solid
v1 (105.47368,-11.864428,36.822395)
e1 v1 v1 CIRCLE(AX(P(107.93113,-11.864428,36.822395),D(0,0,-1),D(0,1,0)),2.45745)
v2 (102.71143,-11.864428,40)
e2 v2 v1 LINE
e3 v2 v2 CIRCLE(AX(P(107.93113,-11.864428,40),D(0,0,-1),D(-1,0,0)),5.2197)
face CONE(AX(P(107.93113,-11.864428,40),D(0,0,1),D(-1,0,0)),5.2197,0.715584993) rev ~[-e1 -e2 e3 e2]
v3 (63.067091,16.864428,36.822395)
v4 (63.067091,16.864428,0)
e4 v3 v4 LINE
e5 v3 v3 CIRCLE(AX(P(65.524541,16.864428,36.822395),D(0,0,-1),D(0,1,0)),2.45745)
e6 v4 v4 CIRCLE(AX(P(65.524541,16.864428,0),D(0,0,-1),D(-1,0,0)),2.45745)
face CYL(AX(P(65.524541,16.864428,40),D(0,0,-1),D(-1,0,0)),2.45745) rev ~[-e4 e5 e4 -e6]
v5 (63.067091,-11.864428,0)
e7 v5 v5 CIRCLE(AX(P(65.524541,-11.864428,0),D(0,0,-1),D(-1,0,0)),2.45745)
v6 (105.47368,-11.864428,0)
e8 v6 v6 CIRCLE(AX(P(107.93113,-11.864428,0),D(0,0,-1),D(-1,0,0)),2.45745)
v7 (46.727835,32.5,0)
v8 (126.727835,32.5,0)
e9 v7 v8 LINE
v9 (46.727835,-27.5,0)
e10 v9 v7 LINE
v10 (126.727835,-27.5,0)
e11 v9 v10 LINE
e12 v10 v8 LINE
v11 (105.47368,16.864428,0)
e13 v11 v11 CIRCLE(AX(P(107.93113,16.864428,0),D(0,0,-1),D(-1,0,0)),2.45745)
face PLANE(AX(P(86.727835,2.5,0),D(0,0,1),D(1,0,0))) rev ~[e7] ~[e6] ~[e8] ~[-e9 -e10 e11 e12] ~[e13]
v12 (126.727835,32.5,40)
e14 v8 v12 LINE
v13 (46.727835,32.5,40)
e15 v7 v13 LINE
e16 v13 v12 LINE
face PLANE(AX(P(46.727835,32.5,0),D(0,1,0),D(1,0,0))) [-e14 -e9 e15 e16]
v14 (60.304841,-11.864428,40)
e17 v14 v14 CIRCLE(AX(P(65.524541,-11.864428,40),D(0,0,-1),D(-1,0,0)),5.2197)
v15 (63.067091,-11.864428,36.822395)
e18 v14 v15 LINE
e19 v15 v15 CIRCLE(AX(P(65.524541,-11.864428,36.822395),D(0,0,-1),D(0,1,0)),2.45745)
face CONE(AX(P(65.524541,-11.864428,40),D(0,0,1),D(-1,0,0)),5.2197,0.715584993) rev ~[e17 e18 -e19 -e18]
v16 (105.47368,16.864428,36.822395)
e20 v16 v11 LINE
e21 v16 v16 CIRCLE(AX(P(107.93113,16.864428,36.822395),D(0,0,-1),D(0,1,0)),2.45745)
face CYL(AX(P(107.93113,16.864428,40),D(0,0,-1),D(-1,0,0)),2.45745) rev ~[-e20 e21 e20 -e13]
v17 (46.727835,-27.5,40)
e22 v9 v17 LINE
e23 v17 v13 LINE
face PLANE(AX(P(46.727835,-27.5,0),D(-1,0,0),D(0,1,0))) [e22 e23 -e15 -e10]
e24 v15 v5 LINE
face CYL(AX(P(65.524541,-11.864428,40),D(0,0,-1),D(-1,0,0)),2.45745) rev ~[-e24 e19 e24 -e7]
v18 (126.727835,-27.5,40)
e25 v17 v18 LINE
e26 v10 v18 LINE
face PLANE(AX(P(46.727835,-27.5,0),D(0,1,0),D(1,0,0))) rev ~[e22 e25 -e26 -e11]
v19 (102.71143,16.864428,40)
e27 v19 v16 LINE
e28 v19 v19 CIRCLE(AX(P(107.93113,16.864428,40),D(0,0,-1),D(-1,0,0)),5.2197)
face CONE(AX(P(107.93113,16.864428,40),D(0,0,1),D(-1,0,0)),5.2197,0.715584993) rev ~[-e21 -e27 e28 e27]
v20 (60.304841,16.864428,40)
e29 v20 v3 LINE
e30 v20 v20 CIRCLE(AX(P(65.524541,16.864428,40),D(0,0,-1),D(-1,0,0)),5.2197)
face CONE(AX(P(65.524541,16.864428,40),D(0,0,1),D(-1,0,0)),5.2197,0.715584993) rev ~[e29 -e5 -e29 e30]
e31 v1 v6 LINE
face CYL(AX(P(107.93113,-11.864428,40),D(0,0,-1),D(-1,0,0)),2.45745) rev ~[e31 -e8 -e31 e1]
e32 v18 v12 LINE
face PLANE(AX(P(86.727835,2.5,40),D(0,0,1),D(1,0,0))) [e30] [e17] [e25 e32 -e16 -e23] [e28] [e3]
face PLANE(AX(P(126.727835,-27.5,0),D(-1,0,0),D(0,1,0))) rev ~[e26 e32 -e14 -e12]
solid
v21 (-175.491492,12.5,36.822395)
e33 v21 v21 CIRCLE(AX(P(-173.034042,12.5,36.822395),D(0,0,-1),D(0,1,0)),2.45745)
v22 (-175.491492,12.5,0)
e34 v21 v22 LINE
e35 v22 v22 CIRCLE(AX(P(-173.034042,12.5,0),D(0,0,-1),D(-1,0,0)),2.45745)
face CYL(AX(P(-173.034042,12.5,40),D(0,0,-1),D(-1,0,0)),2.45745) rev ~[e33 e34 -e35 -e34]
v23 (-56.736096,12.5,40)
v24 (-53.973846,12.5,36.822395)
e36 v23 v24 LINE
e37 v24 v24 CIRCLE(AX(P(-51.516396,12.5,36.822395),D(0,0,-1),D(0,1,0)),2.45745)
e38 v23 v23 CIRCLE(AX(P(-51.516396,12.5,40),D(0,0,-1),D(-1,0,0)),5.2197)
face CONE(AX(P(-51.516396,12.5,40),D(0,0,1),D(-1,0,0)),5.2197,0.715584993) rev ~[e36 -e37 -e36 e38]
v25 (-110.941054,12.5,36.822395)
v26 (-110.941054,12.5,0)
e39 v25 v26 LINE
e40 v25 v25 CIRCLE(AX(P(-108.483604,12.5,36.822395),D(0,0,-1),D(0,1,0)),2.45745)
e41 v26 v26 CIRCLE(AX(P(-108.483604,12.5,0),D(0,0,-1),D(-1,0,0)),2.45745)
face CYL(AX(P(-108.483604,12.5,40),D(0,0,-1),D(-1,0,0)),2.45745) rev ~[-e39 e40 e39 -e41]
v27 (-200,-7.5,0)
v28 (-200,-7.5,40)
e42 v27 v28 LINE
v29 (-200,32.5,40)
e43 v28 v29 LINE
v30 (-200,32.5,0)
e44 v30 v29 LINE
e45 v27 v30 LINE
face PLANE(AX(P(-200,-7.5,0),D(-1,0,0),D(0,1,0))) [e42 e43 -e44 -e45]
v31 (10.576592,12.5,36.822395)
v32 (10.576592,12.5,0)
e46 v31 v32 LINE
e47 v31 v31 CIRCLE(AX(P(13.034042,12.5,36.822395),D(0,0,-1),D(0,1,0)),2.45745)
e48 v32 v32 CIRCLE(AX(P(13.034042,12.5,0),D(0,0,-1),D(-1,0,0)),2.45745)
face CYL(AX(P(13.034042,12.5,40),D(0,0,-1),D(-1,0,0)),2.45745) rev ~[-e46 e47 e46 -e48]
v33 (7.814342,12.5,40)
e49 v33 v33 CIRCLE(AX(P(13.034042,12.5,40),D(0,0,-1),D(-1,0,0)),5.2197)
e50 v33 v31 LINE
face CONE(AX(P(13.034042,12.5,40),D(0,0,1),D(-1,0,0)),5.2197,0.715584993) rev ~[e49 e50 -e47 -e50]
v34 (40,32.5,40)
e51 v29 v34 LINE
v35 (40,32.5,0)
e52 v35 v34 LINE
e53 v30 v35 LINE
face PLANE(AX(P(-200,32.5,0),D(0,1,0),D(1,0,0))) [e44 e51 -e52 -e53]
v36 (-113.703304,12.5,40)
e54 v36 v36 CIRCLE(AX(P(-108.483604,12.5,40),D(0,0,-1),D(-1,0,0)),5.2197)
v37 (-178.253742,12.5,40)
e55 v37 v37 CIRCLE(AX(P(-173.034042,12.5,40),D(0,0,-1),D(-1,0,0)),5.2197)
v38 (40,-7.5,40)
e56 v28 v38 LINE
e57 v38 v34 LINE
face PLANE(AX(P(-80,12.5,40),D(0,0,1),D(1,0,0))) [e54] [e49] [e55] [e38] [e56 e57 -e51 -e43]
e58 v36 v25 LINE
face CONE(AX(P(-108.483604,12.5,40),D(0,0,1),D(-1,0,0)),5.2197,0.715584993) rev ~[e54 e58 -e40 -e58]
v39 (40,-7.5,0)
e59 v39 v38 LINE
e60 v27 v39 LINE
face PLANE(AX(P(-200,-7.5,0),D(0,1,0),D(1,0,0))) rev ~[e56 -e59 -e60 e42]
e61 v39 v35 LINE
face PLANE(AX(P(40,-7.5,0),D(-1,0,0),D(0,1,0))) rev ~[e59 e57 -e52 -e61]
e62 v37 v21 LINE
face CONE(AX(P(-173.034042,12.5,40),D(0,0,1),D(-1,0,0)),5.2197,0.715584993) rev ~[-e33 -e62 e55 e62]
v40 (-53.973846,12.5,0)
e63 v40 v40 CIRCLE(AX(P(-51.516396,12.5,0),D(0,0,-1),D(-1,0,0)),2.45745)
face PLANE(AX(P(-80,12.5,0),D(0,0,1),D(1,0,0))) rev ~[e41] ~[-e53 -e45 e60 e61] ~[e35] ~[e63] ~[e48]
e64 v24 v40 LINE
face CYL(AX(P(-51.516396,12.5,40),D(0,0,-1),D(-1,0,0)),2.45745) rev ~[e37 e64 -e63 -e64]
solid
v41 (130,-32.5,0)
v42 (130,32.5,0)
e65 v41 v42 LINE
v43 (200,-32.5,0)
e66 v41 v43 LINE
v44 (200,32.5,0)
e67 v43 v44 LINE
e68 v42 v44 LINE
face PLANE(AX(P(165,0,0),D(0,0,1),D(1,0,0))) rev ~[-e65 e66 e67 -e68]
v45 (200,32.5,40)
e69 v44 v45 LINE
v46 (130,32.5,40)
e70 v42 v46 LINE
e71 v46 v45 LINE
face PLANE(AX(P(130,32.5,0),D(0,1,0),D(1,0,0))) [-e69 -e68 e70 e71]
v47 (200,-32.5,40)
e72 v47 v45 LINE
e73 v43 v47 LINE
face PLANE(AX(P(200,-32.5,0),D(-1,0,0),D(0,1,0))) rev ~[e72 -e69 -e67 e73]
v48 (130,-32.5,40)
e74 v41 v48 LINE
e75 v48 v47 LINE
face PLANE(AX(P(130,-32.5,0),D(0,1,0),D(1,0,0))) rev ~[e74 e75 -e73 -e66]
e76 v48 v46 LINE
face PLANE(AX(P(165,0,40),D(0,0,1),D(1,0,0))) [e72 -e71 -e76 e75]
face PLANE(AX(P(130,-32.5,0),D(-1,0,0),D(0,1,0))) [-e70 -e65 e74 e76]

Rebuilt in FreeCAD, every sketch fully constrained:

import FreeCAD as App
import Part
import Sketcher
from FreeCAD import Vector
Q = App.Units.Quantity

doc = App.newDocument("Part")
body = doc.addObject("PartDesign::Body", "Body")

# Sketch on XY plane
sketch1 = body.newObject("Sketcher::SketchObject", "Sketch")
sketch1.AttachmentSupport = (doc.getObject("XY_Plane"), [""])
sketch1.MapMode = "FlatFace"
sketch1.addGeometry([
    Part.LineSegment(Vector(-200, 32.5, 0), Vector(-200, -7.5, 0)),
    Part.LineSegment(Vector(-200, -7.5, 0), Vector(40, -7.5, 0)),
    Part.LineSegment(Vector(40, -7.5, 0), Vector(40, 32.5, 0)),
    Part.LineSegment(Vector(40, 32.5, 0), Vector(-200, 32.5, 0)),
], False)
sketch1.addConstraint([
    Sketcher.Constraint("Coincident", 0, 2, 1, 1),
    Sketcher.Constraint("Coincident", 1, 2, 2, 1),
    Sketcher.Constraint("Coincident", 2, 2, 3, 1),
    Sketcher.Constraint("Coincident", 3, 2, 0, 1),
    Sketcher.Constraint("Vertical", 0),
    Sketcher.Constraint("Horizontal", 1),
    Sketcher.Constraint("Vertical", 2),
    Sketcher.Constraint("Horizontal", 3),
    Sketcher.Constraint("DistanceX", 1, 1, 1, 2, Q("240 mm")),
    Sketcher.Constraint("DistanceY", 0, 2, 0, 1, Q("40 mm")),
    Sketcher.Constraint("DistanceX", 0, 2, -1, 1, Q("200 mm")),
    Sketcher.Constraint("DistanceY", 0, 2, -1, 1, Q("7.5 mm")),
])
pad1 = body.newObject("PartDesign::Pad", "Pad")
pad1.Profile = sketch1
pad1.Length = 40

# Sketch on XY plane
sketch2 = body.newObject("Sketcher::SketchObject", "Sketch001")
sketch2.AttachmentSupport = (doc.getObject("XY_Plane"), [""])
sketch2.MapMode = "FlatFace"
sketch2.AttachmentOffset = App.Placement(Vector(0, 0, 40), App.Rotation())
sketch2.addGeometry([
    Part.Circle(Vector(65.524541, 16.864428, 0), Vector(0, 0, 1), 2.45745),  # 0
    Part.Circle(Vector(107.93113, 16.864428, 0), Vector(0, 0, 1), 2.45745),  # 1
    Part.Circle(Vector(107.93113, -11.864428, 0), Vector(0, 0, 1), 2.45745),  # 2
    Part.Circle(Vector(65.524541, -11.864428, 0), Vector(0, 0, 1), 2.45745),  # 3
    Part.Circle(Vector(-51.516396, 12.5, 0), Vector(0, 0, 1), 2.45745),  # 4
    Part.Circle(Vector(13.034042, 12.5, 0), Vector(0, 0, 1), 2.45745),  # 5
    Part.Circle(Vector(-108.483604, 12.5, 0), Vector(0, 0, 1), 2.45745),  # 6
    Part.Circle(Vector(-173.034042, 12.5, 0), Vector(0, 0, 1), 2.45745),  # 7
], False)
sketch2.addConstraint([
    Sketcher.Constraint("Equal", 0, 1),
    Sketcher.Constraint("Equal", 1, 2),
    Sketcher.Constraint("Equal", 2, 3),
    Sketcher.Constraint("Equal", 3, 4),
    Sketcher.Constraint("Equal", 4, 5),
    Sketcher.Constraint("Equal", 5, 6),
    Sketcher.Constraint("Equal", 6, 7),
    Sketcher.Constraint("Horizontal", 0, 3, 1, 3),
    Sketcher.Constraint("Horizontal", 2, 3, 3, 3),
    Sketcher.Constraint("Horizontal", 4, 3, 5, 3),
    Sketcher.Constraint("Horizontal", 5, 3, 6, 3),
    Sketcher.Constraint("Horizontal", 6, 3, 7, 3),
    Sketcher.Constraint("Vertical", 1, 3, 2, 3),
    Sketcher.Constraint("Vertical", 0, 3, 3, 3),
    Sketcher.Constraint("Diameter", 0, Q("4.9149 mm")),
    Sketcher.Constraint("DistanceY", -1, 1, 4, 3, Q("12.5 mm")),
    Sketcher.Constraint("DistanceX", 5, 3, 0, 3, Q("52.490499 mm")),
    Sketcher.Constraint("DistanceX", -1, 1, 0, 3, Q("65.524541 mm")),
    Sketcher.Constraint("DistanceY", -1, 1, 0, 3, Q("16.864428 mm")),
    Sketcher.Constraint("DistanceX", -1, 1, 1, 3, Q("107.93113 mm")),
    Sketcher.Constraint("DistanceY", 2, 3, -1, 1, Q("11.864428 mm")),
    Sketcher.Constraint("DistanceX", 4, 3, 5, 3, Q("64.550438 mm")),
    Sketcher.Constraint("DistanceX", 6, 3, 4, 3, Q("56.967208 mm")),
    Sketcher.Constraint("DistanceX", 7, 3, 6, 3, Q("64.550438 mm")),
])
doc.recompute()
hole = body.newObject("PartDesign::Hole", "Hole")
hole.Profile = sketch2
hole.ThreadType = "None"
hole.Diameter = 4.9149
hole.DepthType = "ThroughAll"
hole.HoleCutType = "Countersink"
hole.HoleCutDiameter = 10.4394
hole.HoleCutCountersinkAngle = 82
body2 = doc.addObject("PartDesign::Body", "Body001")

# Sketch on XY plane
sketch3 = body2.newObject("Sketcher::SketchObject", "Sketch002")
sketch3.AttachmentSupport = (doc.getObject("XY_Plane001"), [""])
sketch3.MapMode = "FlatFace"
sketch3.addGeometry([
    Part.LineSegment(Vector(46.727835, 32.5, 0), Vector(46.727835, -27.5, 0)),
    Part.LineSegment(Vector(46.727835, -27.5, 0), Vector(126.727835, -27.5, 0)),
    Part.LineSegment(Vector(126.727835, -27.5, 0), Vector(126.727835, 32.5, 0)),
    Part.LineSegment(Vector(126.727835, 32.5, 0), Vector(46.727835, 32.5, 0)),
], False)
sketch3.addConstraint([
    Sketcher.Constraint("Coincident", 0, 2, 1, 1),
    Sketcher.Constraint("Coincident", 1, 2, 2, 1),
    Sketcher.Constraint("Coincident", 2, 2, 3, 1),
    Sketcher.Constraint("Coincident", 3, 2, 0, 1),
    Sketcher.Constraint("Vertical", 0),
    Sketcher.Constraint("Horizontal", 1),
    Sketcher.Constraint("Vertical", 2),
    Sketcher.Constraint("Horizontal", 3),
    Sketcher.Constraint("DistanceX", 1, 1, 1, 2, Q("80 mm")),
    Sketcher.Constraint("DistanceY", 0, 2, 0, 1, Q("60 mm")),
    Sketcher.Constraint("DistanceY", 0, 2, -1, 1, Q("27.5 mm")),
    Sketcher.Constraint("DistanceX", -1, 1, 0, 2, Q("46.727835 mm")),
])
pad2 = body2.newObject("PartDesign::Pad", "Pad001")
pad2.Profile = sketch3
pad2.Length = 40

# Sketch on XY plane
sketch4 = body2.newObject("Sketcher::SketchObject", "Sketch003")
sketch4.AttachmentSupport = (doc.getObject("XY_Plane001"), [""])
sketch4.MapMode = "FlatFace"
sketch4.AttachmentOffset = App.Placement(Vector(0, 0, 40), App.Rotation())
sketch4.addGeometry([
    Part.Circle(Vector(65.524541, 16.864428, 0), Vector(0, 0, 1), 2.45745),  # 0
    Part.Circle(Vector(107.93113, 16.864428, 0), Vector(0, 0, 1), 2.45745),  # 1
    Part.Circle(Vector(107.93113, -11.864428, 0), Vector(0, 0, 1), 2.45745),  # 2
    Part.Circle(Vector(65.524541, -11.864428, 0), Vector(0, 0, 1), 2.45745),  # 3
    Part.Circle(Vector(-51.516396, 12.5, 0), Vector(0, 0, 1), 2.45745),  # 4
    Part.Circle(Vector(13.034042, 12.5, 0), Vector(0, 0, 1), 2.45745),  # 5
    Part.Circle(Vector(-108.483604, 12.5, 0), Vector(0, 0, 1), 2.45745),  # 6
    Part.Circle(Vector(-173.034042, 12.5, 0), Vector(0, 0, 1), 2.45745),  # 7
], False)
sketch4.addConstraint([
    Sketcher.Constraint("Equal", 0, 1),
    Sketcher.Constraint("Equal", 1, 2),
    Sketcher.Constraint("Equal", 2, 3),
    Sketcher.Constraint("Equal", 3, 4),
    Sketcher.Constraint("Equal", 4, 5),
    Sketcher.Constraint("Equal", 5, 6),
    Sketcher.Constraint("Equal", 6, 7),
    Sketcher.Constraint("Horizontal", 0, 3, 1, 3),
    Sketcher.Constraint("Horizontal", 2, 3, 3, 3),
    Sketcher.Constraint("Horizontal", 4, 3, 5, 3),
    Sketcher.Constraint("Horizontal", 5, 3, 6, 3),
    Sketcher.Constraint("Horizontal", 6, 3, 7, 3),
    Sketcher.Constraint("Vertical", 1, 3, 2, 3),
    Sketcher.Constraint("Vertical", 0, 3, 3, 3),
    Sketcher.Constraint("Diameter", 0, Q("4.9149 mm")),
    Sketcher.Constraint("DistanceY", -1, 1, 4, 3, Q("12.5 mm")),
    Sketcher.Constraint("DistanceX", 5, 3, 0, 3, Q("52.490499 mm")),
    Sketcher.Constraint("DistanceX", -1, 1, 0, 3, Q("65.524541 mm")),
    Sketcher.Constraint("DistanceY", -1, 1, 0, 3, Q("16.864428 mm")),
    Sketcher.Constraint("DistanceX", -1, 1, 1, 3, Q("107.93113 mm")),
    Sketcher.Constraint("DistanceY", 2, 3, -1, 1, Q("11.864428 mm")),
    Sketcher.Constraint("DistanceX", 4, 3, 5, 3, Q("64.550438 mm")),
    Sketcher.Constraint("DistanceX", 6, 3, 4, 3, Q("56.967208 mm")),
    Sketcher.Constraint("DistanceX", 7, 3, 6, 3, Q("64.550438 mm")),
])
doc.recompute()
hole2 = body2.newObject("PartDesign::Hole", "Hole001")
hole2.Profile = sketch4
hole2.ThreadType = "None"
hole2.Diameter = 4.9149
hole2.DepthType = "ThroughAll"
hole2.HoleCutType = "Countersink"
hole2.HoleCutDiameter = 10.4394
hole2.HoleCutCountersinkAngle = 82
body3 = doc.addObject("PartDesign::Body", "Body002")

# Sketch on XY plane
sketch5 = body3.newObject("Sketcher::SketchObject", "Sketch004")
sketch5.AttachmentSupport = (doc.getObject("XY_Plane002"), [""])
sketch5.MapMode = "FlatFace"
sketch5.addGeometry([
    Part.LineSegment(Vector(130, 32.5, 0), Vector(130, -32.5, 0)),
    Part.LineSegment(Vector(130, -32.5, 0), Vector(200, -32.5, 0)),
    Part.LineSegment(Vector(200, -32.5, 0), Vector(200, 32.5, 0)),
    Part.LineSegment(Vector(200, 32.5, 0), Vector(130, 32.5, 0)),
], False)
sketch5.addConstraint([
    Sketcher.Constraint("Coincident", 0, 2, 1, 1),
    Sketcher.Constraint("Coincident", 1, 2, 2, 1),
    Sketcher.Constraint("Coincident", 2, 2, 3, 1),
    Sketcher.Constraint("Coincident", 3, 2, 0, 1),
    Sketcher.Constraint("Vertical", 0),
    Sketcher.Constraint("Horizontal", 1),
    Sketcher.Constraint("Vertical", 2),
    Sketcher.Constraint("Horizontal", 3),
    Sketcher.Constraint("DistanceX", 1, 1, 1, 2, Q("70 mm")),
    Sketcher.Constraint("DistanceY", 0, 2, 0, 1, Q("65 mm")),
    Sketcher.Constraint("DistanceX", -1, 1, 0, 2, Q("130 mm")),
    Sketcher.Constraint("DistanceY", 0, 2, -1, 1, Q("32.5 mm")),
])
pad3 = body3.newObject("PartDesign::Pad", "Pad002")
pad3.Profile = sketch5
pad3.Length = 40

doc.recompute()
